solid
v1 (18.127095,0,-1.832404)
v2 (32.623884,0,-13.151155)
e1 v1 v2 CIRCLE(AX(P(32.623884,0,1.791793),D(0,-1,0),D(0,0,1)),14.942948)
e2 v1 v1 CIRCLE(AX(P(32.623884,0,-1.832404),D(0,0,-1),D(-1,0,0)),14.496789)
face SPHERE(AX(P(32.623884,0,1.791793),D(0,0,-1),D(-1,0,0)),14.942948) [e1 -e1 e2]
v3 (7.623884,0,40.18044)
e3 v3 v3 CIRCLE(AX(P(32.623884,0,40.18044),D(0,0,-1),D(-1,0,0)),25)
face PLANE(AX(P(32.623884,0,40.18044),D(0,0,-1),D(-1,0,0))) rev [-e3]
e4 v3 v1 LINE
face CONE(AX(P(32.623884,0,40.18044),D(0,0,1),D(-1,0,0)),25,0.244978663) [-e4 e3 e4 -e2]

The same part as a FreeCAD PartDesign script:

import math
import FreeCAD as App
import Part
import Sketcher
Q = App.Units.Quantity

doc = App.newDocument("Part")
body = doc.addObject("PartDesign::Body", "Body")

# Sketch on XZ plane
sketch1 = doc.addObject("Sketcher::SketchObject", "Sketch")
body.addObject(sketch1)
sketch1.AttachmentSupport = (doc.XZ_Plane, [""])
sketch1.MapMode = "FlatFace"
sketch1.addGeometry([
    Part.LineSegment(App.Vector(33, 40, 0), App.Vector(8, 40, 0)),
    Part.LineSegment(App.Vector(8, 40, 0), App.Vector(18, -2, 0)),
    Part.ArcOfCircle(Part.Circle(App.Vector(33, 2, 0), App.Vector(0, 0, 1), 15), math.radians(-166), math.radians(-90)),
    Part.LineSegment(App.Vector(33, -13, 0), App.Vector(33, 40, 0)),
], False)
sketch1.addGeometry(Part.LineSegment(App.Vector(33, 40, 0), App.Vector(33, -13, 0)), True)  # axis
sketch1.addConstraint([
    Sketcher.Constraint("Coincident", 0, 2, 1, 1),
    Sketcher.Constraint("Tangent", 1, 2, 2, 1),
    Sketcher.Constraint("Coincident", 2, 2, 3, 1),
    Sketcher.Constraint("Coincident", 3, 2, 0, 1),
    Sketcher.Constraint("Horizontal", 0),
    Sketcher.Constraint("Vertical", 3),
    Sketcher.Constraint("Vertical", 4),
    Sketcher.Constraint("Coincident", 4, 1, 3, 2),
    Sketcher.Constraint("Equal", 3, 4),
    Sketcher.Constraint("DistanceX", 0, 2, 0, 1, Q("25 mm")),
    Sketcher.Constraint("DistanceX", 0, 2, 2, 3, Q("25 mm")),
    Sketcher.Constraint("Radius", 2, Q("14.942948 mm")),
    Sketcher.Constraint("Distance", 1, Q("43.305849 mm")),
    Sketcher.Constraint("DistanceY", -1, 1, 0, 2, Q("40.18044 mm")),
    Sketcher.Constraint("DistanceX", -1, 1, 2, 3, Q("32.623884 mm")),
])
revolution = doc.addObject("PartDesign::Revolution", "Revolution")
body.addObject(revolution)
revolution.Profile = sketch1
revolution.ReferenceAxis = (sketch1, ["Axis0"])
revolution.Angle = 360

doc.recompute()
